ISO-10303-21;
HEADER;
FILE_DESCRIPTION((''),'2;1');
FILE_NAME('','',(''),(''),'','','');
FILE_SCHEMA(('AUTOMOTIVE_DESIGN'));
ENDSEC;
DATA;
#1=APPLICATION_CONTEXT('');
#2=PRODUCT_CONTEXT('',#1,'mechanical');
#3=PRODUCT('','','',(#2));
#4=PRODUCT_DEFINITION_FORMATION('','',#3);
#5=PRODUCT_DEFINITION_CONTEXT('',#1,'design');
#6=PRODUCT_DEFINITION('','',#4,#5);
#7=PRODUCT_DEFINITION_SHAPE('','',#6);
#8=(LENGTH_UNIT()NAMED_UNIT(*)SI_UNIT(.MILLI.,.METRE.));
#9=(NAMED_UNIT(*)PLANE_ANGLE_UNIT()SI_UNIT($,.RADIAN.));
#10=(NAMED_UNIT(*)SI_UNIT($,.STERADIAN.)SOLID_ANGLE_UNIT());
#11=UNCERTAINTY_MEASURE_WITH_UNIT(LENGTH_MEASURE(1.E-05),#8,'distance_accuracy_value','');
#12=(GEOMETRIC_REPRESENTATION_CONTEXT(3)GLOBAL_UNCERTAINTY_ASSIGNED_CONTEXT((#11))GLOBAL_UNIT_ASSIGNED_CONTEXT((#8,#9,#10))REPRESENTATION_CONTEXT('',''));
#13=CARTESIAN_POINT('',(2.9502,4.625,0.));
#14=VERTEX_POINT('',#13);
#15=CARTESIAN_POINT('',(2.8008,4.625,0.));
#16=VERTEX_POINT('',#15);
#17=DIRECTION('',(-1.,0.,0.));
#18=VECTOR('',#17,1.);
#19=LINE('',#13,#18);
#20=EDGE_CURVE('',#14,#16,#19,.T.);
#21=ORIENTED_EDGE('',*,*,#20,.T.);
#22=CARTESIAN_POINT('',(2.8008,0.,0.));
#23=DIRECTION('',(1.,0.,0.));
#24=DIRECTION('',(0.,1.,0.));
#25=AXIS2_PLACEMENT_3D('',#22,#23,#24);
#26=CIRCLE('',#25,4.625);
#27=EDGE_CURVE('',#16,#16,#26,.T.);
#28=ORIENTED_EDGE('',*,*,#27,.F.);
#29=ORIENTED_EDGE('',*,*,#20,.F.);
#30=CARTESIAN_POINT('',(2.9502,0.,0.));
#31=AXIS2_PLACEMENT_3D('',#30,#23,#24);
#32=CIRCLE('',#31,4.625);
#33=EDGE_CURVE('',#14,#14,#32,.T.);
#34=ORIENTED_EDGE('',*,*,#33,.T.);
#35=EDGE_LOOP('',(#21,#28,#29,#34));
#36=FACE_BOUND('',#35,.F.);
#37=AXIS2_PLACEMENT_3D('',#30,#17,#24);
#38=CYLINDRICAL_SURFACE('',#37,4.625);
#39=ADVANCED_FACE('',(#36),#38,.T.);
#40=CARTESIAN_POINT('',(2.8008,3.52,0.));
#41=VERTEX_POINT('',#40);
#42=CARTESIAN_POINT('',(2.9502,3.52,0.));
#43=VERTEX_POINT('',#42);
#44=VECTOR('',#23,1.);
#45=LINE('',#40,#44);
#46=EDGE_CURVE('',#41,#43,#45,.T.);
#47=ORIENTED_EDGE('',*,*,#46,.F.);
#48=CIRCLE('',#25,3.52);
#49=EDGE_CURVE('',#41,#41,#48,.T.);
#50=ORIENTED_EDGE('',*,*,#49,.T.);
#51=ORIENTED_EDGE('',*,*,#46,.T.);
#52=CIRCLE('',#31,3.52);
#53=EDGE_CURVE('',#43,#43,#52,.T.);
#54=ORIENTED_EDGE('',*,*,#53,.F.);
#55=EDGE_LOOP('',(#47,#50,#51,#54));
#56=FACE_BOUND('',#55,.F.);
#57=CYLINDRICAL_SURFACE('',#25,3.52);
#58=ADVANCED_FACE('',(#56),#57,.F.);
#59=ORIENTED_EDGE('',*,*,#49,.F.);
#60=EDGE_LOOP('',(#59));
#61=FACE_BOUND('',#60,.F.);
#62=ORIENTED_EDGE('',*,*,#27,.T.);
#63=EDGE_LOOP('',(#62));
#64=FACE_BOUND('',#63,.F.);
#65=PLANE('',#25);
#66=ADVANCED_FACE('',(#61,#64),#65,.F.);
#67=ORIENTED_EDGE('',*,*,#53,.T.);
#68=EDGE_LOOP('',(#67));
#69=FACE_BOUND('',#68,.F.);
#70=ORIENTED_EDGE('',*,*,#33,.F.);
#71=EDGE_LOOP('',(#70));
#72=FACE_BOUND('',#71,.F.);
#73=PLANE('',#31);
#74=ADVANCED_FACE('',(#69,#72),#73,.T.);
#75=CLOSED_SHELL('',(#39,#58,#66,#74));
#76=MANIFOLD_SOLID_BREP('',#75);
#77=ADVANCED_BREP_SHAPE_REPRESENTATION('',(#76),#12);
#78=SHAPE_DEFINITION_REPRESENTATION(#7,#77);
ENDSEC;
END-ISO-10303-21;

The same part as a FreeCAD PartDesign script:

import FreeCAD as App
import Part
import Sketcher

V = App.Vector

doc = App.newDocument("Part")
params = doc.addObject("Spreadsheet::Sheet", "Params")
for row, (alias, value) in enumerate([
    ("revolution_angle", "360 deg"),
], start=1):
    params.set(f"A{row}", alias)
    params.set(f"B{row}", "=" + value)
    params.setAlias(f"B{row}", alias)

body = doc.addObject("PartDesign::Body", "Body")

# Sketch on XY plane
sketch1 = doc.addObject("Sketcher::SketchObject", "Sketch")
body.addObject(sketch1)
sketch1.AttachmentSupport = (doc.XY_Plane, [""])
sketch1.MapMode = "FlatFace"
sketch1.addGeometry(Part.LineSegment(V(2.8, 4.62, 0), V(2.8, 3.52, 0)), False)
sketch1.addGeometry(Part.LineSegment(V(2.8, 3.52, 0), V(2.95, 3.52, 0)), False)
sketch1.addGeometry(Part.LineSegment(V(2.95, 3.52, 0), V(2.95, 4.62, 0)), False)
sketch1.addGeometry(Part.LineSegment(V(2.95, 4.62, 0), V(2.8, 4.62, 0)), False)
sketch1.addConstraint(Sketcher.Constraint("Coincident", 0, 2, 1, 1))
sketch1.addConstraint(Sketcher.Constraint("Coincident", 1, 2, 2, 1))
sketch1.addConstraint(Sketcher.Constraint("Coincident", 2, 2, 3, 1))
sketch1.addConstraint(Sketcher.Constraint("Coincident", 3, 2, 0, 1))
sketch1.addConstraint(Sketcher.Constraint("Vertical", 0))
sketch1.addConstraint(Sketcher.Constraint("Horizontal", 1))
sketch1.addConstraint(Sketcher.Constraint("Vertical", 2))
sketch1.addConstraint(Sketcher.Constraint("Horizontal", 3))
sketch1.addConstraint(Sketcher.Constraint("DistanceY", 0, 2, 0, 1, 1.105))
sketch1.addConstraint(Sketcher.Constraint("DistanceY", -1, 1, 0, 2, 3.52))
sketch1.addConstraint(Sketcher.Constraint("DistanceX", 1, 1, 1, 2, 0.1494))
sketch1.addConstraint(Sketcher.Constraint("DistanceX", -1, 1, 0, 2, 2.8008))
revolution = doc.addObject("PartDesign::Revolution", "Revolution")
body.addObject(revolution)
revolution.Profile = sketch1
revolution.ReferenceAxis = (sketch1, ["H_Axis"])
revolution.setExpression("Angle", "Params.revolution_angle")

doc.recompute()
